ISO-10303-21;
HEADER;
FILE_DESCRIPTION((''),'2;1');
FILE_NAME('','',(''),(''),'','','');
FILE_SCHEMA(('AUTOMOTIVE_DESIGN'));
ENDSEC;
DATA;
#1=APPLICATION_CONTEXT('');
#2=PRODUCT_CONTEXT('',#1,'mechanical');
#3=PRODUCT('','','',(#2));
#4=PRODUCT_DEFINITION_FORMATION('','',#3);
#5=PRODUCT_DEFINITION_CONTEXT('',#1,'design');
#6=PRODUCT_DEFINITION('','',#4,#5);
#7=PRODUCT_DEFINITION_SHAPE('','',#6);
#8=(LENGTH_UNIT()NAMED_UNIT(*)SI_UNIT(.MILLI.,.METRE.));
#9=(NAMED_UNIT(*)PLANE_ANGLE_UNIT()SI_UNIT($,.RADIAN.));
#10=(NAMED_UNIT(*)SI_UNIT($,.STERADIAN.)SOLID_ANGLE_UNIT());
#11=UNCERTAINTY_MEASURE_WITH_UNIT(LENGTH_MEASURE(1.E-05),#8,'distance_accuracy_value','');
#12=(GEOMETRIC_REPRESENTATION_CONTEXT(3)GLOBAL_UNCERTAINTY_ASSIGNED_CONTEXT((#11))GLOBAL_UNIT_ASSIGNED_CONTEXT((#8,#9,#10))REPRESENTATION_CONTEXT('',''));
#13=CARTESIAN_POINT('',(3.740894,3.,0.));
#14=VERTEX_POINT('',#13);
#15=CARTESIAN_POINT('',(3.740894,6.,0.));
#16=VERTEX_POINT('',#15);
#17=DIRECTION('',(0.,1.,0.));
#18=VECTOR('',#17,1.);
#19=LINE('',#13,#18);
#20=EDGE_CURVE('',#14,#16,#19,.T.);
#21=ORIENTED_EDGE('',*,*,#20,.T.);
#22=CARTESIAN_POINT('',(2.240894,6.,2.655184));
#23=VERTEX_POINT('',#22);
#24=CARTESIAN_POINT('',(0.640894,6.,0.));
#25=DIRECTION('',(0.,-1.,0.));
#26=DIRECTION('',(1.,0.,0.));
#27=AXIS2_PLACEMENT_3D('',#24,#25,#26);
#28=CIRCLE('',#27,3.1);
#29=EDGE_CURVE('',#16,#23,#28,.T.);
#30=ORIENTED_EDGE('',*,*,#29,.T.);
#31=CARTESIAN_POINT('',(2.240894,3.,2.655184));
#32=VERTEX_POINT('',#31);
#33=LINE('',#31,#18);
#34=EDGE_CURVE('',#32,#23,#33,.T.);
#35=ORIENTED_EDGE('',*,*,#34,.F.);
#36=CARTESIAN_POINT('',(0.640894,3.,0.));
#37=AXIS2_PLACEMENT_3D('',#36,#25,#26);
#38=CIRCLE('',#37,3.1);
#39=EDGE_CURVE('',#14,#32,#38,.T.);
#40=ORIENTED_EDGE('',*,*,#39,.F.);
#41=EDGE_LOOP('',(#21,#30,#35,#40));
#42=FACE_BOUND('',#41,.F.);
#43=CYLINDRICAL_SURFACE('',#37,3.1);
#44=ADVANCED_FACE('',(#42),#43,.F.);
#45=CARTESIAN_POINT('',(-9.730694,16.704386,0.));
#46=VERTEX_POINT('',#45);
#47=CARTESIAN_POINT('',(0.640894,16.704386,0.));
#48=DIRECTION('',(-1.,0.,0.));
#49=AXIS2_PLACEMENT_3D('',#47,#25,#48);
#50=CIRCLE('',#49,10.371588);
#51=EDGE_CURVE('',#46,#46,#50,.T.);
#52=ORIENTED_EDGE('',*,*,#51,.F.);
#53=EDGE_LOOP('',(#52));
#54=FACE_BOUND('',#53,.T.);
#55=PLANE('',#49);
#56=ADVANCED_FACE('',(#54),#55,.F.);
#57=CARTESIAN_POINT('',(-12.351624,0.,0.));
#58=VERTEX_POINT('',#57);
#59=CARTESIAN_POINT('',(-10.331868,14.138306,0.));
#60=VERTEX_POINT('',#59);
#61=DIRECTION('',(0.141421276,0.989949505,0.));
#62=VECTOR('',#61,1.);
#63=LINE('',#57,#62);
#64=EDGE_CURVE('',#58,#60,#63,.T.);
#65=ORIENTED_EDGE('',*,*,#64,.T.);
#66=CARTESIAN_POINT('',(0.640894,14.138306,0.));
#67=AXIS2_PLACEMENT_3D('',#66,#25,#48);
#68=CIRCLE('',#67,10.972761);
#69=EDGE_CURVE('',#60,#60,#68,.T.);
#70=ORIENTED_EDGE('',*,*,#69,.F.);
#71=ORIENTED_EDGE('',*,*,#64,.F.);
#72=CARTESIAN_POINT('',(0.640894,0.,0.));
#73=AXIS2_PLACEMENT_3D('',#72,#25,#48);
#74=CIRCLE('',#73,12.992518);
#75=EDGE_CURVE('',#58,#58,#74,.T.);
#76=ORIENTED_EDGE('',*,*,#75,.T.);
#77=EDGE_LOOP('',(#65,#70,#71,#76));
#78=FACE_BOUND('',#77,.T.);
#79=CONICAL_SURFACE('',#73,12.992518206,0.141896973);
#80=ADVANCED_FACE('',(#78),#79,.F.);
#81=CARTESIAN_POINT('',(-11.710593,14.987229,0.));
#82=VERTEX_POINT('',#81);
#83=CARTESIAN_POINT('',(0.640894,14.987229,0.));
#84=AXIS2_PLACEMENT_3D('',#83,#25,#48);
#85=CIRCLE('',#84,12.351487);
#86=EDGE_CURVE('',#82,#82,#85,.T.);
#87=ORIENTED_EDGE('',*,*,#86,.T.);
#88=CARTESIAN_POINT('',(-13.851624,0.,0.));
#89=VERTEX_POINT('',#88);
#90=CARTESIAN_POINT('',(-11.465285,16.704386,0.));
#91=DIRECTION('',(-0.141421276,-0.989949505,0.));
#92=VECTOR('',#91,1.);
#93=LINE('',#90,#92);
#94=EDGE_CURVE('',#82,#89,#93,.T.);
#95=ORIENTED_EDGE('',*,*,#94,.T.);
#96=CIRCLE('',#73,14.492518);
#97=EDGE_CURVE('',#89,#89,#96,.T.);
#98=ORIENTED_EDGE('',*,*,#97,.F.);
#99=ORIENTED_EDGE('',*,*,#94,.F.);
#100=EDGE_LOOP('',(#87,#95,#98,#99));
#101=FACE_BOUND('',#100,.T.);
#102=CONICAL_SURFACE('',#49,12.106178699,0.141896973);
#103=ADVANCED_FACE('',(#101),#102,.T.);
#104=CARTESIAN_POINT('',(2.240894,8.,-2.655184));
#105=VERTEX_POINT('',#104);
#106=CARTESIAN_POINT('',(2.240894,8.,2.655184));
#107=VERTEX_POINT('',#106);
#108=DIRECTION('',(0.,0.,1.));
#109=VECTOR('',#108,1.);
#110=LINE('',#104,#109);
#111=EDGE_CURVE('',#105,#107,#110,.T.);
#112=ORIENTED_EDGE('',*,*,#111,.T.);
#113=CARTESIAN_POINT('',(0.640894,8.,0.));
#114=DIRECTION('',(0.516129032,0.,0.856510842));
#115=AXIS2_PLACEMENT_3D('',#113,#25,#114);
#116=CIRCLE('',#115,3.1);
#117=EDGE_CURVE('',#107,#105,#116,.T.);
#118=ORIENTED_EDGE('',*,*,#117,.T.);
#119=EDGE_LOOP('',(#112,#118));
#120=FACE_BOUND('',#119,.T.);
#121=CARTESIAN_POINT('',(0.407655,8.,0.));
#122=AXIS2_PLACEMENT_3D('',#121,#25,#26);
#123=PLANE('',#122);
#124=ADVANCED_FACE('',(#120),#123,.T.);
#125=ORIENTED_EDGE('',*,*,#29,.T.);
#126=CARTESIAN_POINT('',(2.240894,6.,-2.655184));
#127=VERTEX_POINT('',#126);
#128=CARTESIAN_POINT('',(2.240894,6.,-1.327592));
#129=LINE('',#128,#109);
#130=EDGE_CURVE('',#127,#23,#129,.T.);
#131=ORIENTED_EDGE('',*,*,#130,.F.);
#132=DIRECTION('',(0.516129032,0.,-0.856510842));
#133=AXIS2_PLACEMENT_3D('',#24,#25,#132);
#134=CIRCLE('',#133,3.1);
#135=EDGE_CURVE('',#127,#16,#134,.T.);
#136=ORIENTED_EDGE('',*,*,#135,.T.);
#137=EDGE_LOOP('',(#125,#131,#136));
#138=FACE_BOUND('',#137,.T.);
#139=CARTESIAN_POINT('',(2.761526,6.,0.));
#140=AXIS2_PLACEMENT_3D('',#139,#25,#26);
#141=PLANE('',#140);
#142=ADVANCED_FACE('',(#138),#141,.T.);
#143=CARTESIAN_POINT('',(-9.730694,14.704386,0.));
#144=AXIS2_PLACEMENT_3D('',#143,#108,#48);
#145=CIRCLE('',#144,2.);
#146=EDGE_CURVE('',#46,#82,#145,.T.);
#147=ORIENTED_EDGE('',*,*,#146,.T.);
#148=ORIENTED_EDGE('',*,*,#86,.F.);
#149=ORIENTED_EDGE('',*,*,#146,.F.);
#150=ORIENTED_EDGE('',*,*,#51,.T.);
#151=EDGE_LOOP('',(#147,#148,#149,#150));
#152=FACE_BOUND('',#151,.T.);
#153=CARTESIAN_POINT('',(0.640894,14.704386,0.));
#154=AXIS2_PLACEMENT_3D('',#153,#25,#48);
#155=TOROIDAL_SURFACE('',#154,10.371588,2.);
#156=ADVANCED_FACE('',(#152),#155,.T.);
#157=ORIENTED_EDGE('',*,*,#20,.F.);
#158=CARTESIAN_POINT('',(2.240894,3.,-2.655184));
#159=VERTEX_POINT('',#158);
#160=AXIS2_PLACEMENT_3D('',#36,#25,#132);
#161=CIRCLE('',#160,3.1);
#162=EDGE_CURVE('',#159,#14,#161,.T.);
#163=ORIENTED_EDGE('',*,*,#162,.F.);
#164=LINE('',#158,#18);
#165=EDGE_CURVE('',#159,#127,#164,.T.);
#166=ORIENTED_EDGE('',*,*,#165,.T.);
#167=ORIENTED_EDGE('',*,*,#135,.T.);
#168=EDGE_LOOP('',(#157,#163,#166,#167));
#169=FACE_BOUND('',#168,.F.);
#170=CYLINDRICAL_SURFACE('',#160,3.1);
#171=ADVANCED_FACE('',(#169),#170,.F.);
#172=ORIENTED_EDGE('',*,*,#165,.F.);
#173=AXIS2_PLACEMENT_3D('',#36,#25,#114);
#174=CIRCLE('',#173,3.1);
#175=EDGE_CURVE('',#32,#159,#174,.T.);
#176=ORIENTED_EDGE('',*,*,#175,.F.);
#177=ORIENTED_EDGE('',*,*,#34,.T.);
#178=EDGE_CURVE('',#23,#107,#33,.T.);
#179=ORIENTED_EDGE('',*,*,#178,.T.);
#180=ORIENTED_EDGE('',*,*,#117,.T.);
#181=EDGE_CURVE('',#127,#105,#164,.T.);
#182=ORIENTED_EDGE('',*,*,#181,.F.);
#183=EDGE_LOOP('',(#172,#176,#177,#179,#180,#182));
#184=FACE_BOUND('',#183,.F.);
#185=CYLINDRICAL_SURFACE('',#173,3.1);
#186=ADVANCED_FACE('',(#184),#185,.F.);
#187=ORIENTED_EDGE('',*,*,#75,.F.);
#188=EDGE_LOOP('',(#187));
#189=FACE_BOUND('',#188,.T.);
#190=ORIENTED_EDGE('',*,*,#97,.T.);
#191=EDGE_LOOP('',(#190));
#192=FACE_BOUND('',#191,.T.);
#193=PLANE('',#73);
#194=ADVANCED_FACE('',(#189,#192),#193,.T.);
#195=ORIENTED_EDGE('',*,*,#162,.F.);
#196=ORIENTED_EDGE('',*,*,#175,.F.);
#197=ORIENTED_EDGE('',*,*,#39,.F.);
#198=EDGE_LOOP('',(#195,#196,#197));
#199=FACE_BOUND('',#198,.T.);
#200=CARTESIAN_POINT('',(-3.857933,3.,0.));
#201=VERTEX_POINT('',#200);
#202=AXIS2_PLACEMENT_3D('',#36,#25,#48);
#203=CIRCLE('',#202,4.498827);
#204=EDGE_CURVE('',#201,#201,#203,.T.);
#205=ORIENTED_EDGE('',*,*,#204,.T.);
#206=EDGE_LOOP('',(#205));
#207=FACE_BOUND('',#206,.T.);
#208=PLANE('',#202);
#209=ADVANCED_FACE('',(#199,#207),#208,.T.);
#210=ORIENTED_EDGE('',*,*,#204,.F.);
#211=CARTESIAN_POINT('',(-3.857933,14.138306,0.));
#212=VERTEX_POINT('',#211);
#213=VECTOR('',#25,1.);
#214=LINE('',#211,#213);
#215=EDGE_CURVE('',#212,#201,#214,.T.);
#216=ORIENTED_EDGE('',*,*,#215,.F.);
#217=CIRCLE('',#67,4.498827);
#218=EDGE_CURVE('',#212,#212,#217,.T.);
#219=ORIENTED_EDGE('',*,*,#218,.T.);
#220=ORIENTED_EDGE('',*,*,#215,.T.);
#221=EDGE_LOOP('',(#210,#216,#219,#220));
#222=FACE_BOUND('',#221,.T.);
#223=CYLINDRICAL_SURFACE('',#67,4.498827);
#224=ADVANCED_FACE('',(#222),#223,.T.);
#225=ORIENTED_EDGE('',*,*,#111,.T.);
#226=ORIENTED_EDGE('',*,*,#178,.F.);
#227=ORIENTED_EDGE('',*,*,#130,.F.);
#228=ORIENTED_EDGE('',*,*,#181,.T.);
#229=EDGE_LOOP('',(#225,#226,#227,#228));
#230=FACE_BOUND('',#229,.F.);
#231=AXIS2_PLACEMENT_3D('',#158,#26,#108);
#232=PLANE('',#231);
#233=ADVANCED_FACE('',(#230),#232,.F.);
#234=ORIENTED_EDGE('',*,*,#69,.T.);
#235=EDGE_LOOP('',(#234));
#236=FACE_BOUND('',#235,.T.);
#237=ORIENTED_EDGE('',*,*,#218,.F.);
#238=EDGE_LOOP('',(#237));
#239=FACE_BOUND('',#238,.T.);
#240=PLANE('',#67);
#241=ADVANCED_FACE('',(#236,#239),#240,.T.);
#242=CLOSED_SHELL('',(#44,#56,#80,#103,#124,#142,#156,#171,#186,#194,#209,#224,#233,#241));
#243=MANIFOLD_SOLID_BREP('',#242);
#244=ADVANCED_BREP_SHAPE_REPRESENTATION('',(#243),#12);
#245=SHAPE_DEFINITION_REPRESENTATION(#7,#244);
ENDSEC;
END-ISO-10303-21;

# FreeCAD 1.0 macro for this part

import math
import FreeCAD as App
import Part
import Sketcher


def edges_at(feature, points):
    """Names of the edges that pass closest to the given points."""
    edges = feature.Shape.Edges
    near = lambda p: min(range(len(edges)), key=lambda i: edges[i].distToShape(Part.Vertex(*p))[0])
    return sorted({f"Edge{near(p) + 1}" for p in points})


def add_polygon(sketch, points):
    """Adds a closed chain of lines whose ends are joined by coincident constraints."""
    first, n = sketch.GeometryCount, len(points)
    for a, b in zip(points, points[1:] + points[:1]):
        sketch.addGeometry(Part.LineSegment(App.Vector(*a, 0), App.Vector(*b, 0)), False)
    for i in range(n):
        sketch.addConstraint(Sketcher.Constraint("Coincident", first + i, 2, first + (i + 1) % n, 1))

doc = App.newDocument("Part")
body = doc.addObject("PartDesign::Body", "Body")

sketch1 = doc.addObject("Sketcher::SketchObject", "Sketch")
body.addObject(sketch1)
sketch1.AttachmentSupport = (doc.XY_Plane, [""])
sketch1.MapMode = "FlatFace"
add_polygon(sketch1, [(0.6, 3), (0.6, 16.7), (-11.5, 16.7), (-13.9, 0), (-12.4, 0), (-10.3, 14.1), (-3.9, 14.1), (-3.9, 3)])
sketch1.addGeometry(Part.LineSegment(App.Vector(0.6, 16.7, 0), App.Vector(0.6, 0, 0)), True)
sketch1.addConstraint(Sketcher.Constraint("Vertical", 0))
sketch1.addConstraint(Sketcher.Constraint("Horizontal", 1))
sketch1.addConstraint(Sketcher.Constraint("Horizontal", 3))
sketch1.addConstraint(Sketcher.Constraint("Horizontal", 5))
sketch1.addConstraint(Sketcher.Constraint("Vertical", 6))
sketch1.addConstraint(Sketcher.Constraint("Horizontal", 7))
sketch1.addConstraint(Sketcher.Constraint("Vertical", 8))
sketch1.addConstraint(Sketcher.Constraint("Coincident", 8, 1, 0, 2))
sketch1.addConstraint(Sketcher.Constraint("PointOnObject", 2, 2, -1))
sketch1.addConstraint(Sketcher.Constraint("PointOnObject", 8, 2, -1))
sketch1.addConstraint(Sketcher.Constraint("Parallel", 2, 4))
sketch1.addConstraint(Sketcher.Constraint("DistanceX", 3, 1, 3, 2, 1.5))
sketch1.addConstraint(Sketcher.Constraint("DistanceY", -1, 1, 6, 2, 3.0))
sketch1.addConstraint(Sketcher.Constraint("DistanceX", 1, 2, 1, 1, 12.106179))
sketch1.addConstraint(Sketcher.Constraint("Distance", 2, 16.873978))
sketch1.addConstraint(Sketcher.Constraint("DistanceX", 5, 1, 5, 2, 6.473934))
sketch1.addConstraint(Sketcher.Constraint("DistanceX", 7, 1, 7, 2, 4.498827))
sketch1.addConstraint(Sketcher.Constraint("DistanceY", 0, 1, 0, 2, 13.704386))
sketch1.addConstraint(Sketcher.Constraint("DistanceX", -1, 1, 0, 2, 0.640894))
revolution = doc.addObject("PartDesign::Revolution", "Revolution")
body.addObject(revolution)
revolution.Profile = sketch1
revolution.ReferenceAxis = (sketch1, ["Axis0"])
revolution.Angle = 360
doc.recompute()

fillet = doc.addObject("PartDesign::Fillet", "Fillet")
body.addObject(fillet)
fillet.Base = (revolution, edges_at(revolution, [(12.747, 16.704, 0)]))
fillet.Radius = 2

sketch2 = doc.addObject("Sketcher::SketchObject", "Sketch001")
body.addObject(sketch2)
sketch2.AttachmentSupport = (doc.XZ_Plane, [""])
sketch2.MapMode = "FlatFace"
sketch2.AttachmentOffset = App.Placement(App.Vector(0, 0, -3), App.Rotation())
sketch2.addGeometry(Part.ArcOfCircle(Part.Circle(App.Vector(0.6, 0, 0), App.Vector(0, 0, 1), 3.1), math.radians(-59), math.radians(0)), False)
sketch2.addGeometry(Part.ArcOfCircle(Part.Circle(App.Vector(0.6, 0, 0), App.Vector(0, 0, 1), 3.1), math.radians(0), math.radians(59)), False)
sketch2.addGeometry(Part.ArcOfCircle(Part.Circle(App.Vector(0.6, 0, 0), App.Vector(0, 0, 1), 3.1), math.radians(59), math.radians(301)), False)
sketch2.addConstraint(Sketcher.Constraint("Tangent", 0, 2, 1, 1))
sketch2.addConstraint(Sketcher.Constraint("Tangent", 1, 2, 2, 1))
sketch2.addConstraint(Sketcher.Constraint("Tangent", 2, 2, 0, 1))
sketch2.addConstraint(Sketcher.Constraint("Symmetric", 1, 2, 2, 2, -1))
sketch2.addConstraint(Sketcher.Constraint("PointOnObject", 0, 2, -1))
sketch2.addConstraint(Sketcher.Constraint("Radius", 0, 3.1))
sketch2.addConstraint(Sketcher.Constraint("DistanceX", 1, 2, 0, 2, 1.5))
sketch2.addConstraint(Sketcher.Constraint("DistanceX", -1, 1, 0, 3, 0.640894))
pocket1 = doc.addObject("PartDesign::Pocket", "Pocket")
body.addObject(pocket1)
pocket1.Profile = sketch2
pocket1.Length = 3

sketch3 = doc.addObject("Sketcher::SketchObject", "Sketch002")
body.addObject(sketch3)
sketch3.AttachmentSupport = (doc.XZ_Plane, [""])
sketch3.MapMode = "FlatFace"
sketch3.AttachmentOffset = App.Placement(App.Vector(0, 0, -3), App.Rotation())
sketch3.addGeometry(Part.LineSegment(App.Vector(2.2, -2.7, 0), App.Vector(2.2, 2.7, 0)), False)
sketch3.addGeometry(Part.ArcOfCircle(Part.Circle(App.Vector(0.6, 0, 0), App.Vector(0, 0, 1), 3.1), math.radians(59), math.radians(301)), False)
sketch3.addConstraint(Sketcher.Constraint("Coincident", 0, 1, 1, 2))
sketch3.addConstraint(Sketcher.Constraint("Coincident", 1, 1, 0, 2))
sketch3.addConstraint(Sketcher.Constraint("Vertical", 0))
sketch3.addConstraint(Sketcher.Constraint("PointOnObject", 1, 3, -1))
sketch3.addConstraint(Sketcher.Constraint("Radius", 1, 3.1))
sketch3.addConstraint(Sketcher.Constraint("DistanceX", 1, 3, 0, 1, 1.6))
sketch3.addConstraint(Sketcher.Constraint("DistanceX", -1, 1, 1, 3, 0.640894))
pocket2 = doc.addObject("PartDesign::Pocket", "Pocket001")
body.addObject(pocket2)
pocket2.Profile = sketch3
pocket2.Length = 5

doc.recompute()
